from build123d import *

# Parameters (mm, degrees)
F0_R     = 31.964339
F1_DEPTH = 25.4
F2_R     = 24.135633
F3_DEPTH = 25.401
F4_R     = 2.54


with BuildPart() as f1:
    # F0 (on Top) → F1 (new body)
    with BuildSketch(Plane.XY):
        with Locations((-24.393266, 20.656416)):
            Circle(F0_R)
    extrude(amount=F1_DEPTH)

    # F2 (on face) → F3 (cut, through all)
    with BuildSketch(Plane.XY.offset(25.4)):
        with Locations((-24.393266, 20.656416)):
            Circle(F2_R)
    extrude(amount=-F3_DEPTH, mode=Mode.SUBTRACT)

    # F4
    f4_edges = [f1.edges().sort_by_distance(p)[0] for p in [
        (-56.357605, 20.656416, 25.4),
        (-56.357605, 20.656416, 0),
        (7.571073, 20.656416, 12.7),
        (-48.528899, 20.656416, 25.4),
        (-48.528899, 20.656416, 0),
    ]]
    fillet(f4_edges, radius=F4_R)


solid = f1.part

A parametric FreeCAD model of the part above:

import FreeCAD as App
import Part
import Sketcher

V = App.Vector
Q = App.Units.Quantity

doc = App.newDocument("Part")
body = doc.addObject("PartDesign::Body", "Body")

# Sketch on XY plane
sketch1 = doc.addObject("Sketcher::SketchObject", "Sketch")
body.addObject(sketch1)
sketch1.AttachmentSupport = (doc.XY_Plane, [""])
sketch1.MapMode = "FlatFace"
sketch1.addGeometry(Part.Circle(V(-24.393266, 20.656416, 0), V(0, 0, 1), 31.964339), False)
sketch1.addConstraint([
    Sketcher.Constraint("Diameter", 0, Q("63.928678 mm")),
    Sketcher.Constraint("DistanceX", 0, 3, -1, 1, Q("24.393266 mm")),
    Sketcher.Constraint("DistanceY", -1, 1, 0, 3, Q("20.656416 mm")),
])
pad1 = doc.addObject("PartDesign::Pad", "Pad")
body.addObject(pad1)
pad1.Profile = sketch1
pad1.Length = Q("1 in")

# Sketch on XY plane
sketch2 = doc.addObject("Sketcher::SketchObject", "Sketch001")
body.addObject(sketch2)
sketch2.AttachmentSupport = (doc.XY_Plane, [""])
sketch2.MapMode = "FlatFace"
sketch2.AttachmentOffset = App.Placement(V(0, 0, 1 * 25.4), App.Rotation())
sketch2.addGeometry(Part.Circle(V(-24.393266, 20.656416, 0), V(0, 0, 1), 24.135633), False)
sketch2.addConstraint([
    Sketcher.Constraint("Diameter", 0, Q("48.271266 mm")),
    Sketcher.Constraint("DistanceX", 0, 3, -1, 1, Q("24.393266 mm")),
    Sketcher.Constraint("DistanceY", -1, 1, 0, 3, Q("20.656416 mm")),
])
pocket1 = doc.addObject("PartDesign::Pocket", "Pocket")
body.addObject(pocket1)
pocket1.Profile = sketch2
pocket1.Type = "ThroughAll"
doc.recompute()

fillet = doc.addObject("PartDesign::Fillet", "Fillet")
body.addObject(fillet)
fillet.Base = (pocket1, ["Edge1"])
fillet.UseAllEdges = True
fillet.Radius = Q("0.1 in")

doc.recompute()
